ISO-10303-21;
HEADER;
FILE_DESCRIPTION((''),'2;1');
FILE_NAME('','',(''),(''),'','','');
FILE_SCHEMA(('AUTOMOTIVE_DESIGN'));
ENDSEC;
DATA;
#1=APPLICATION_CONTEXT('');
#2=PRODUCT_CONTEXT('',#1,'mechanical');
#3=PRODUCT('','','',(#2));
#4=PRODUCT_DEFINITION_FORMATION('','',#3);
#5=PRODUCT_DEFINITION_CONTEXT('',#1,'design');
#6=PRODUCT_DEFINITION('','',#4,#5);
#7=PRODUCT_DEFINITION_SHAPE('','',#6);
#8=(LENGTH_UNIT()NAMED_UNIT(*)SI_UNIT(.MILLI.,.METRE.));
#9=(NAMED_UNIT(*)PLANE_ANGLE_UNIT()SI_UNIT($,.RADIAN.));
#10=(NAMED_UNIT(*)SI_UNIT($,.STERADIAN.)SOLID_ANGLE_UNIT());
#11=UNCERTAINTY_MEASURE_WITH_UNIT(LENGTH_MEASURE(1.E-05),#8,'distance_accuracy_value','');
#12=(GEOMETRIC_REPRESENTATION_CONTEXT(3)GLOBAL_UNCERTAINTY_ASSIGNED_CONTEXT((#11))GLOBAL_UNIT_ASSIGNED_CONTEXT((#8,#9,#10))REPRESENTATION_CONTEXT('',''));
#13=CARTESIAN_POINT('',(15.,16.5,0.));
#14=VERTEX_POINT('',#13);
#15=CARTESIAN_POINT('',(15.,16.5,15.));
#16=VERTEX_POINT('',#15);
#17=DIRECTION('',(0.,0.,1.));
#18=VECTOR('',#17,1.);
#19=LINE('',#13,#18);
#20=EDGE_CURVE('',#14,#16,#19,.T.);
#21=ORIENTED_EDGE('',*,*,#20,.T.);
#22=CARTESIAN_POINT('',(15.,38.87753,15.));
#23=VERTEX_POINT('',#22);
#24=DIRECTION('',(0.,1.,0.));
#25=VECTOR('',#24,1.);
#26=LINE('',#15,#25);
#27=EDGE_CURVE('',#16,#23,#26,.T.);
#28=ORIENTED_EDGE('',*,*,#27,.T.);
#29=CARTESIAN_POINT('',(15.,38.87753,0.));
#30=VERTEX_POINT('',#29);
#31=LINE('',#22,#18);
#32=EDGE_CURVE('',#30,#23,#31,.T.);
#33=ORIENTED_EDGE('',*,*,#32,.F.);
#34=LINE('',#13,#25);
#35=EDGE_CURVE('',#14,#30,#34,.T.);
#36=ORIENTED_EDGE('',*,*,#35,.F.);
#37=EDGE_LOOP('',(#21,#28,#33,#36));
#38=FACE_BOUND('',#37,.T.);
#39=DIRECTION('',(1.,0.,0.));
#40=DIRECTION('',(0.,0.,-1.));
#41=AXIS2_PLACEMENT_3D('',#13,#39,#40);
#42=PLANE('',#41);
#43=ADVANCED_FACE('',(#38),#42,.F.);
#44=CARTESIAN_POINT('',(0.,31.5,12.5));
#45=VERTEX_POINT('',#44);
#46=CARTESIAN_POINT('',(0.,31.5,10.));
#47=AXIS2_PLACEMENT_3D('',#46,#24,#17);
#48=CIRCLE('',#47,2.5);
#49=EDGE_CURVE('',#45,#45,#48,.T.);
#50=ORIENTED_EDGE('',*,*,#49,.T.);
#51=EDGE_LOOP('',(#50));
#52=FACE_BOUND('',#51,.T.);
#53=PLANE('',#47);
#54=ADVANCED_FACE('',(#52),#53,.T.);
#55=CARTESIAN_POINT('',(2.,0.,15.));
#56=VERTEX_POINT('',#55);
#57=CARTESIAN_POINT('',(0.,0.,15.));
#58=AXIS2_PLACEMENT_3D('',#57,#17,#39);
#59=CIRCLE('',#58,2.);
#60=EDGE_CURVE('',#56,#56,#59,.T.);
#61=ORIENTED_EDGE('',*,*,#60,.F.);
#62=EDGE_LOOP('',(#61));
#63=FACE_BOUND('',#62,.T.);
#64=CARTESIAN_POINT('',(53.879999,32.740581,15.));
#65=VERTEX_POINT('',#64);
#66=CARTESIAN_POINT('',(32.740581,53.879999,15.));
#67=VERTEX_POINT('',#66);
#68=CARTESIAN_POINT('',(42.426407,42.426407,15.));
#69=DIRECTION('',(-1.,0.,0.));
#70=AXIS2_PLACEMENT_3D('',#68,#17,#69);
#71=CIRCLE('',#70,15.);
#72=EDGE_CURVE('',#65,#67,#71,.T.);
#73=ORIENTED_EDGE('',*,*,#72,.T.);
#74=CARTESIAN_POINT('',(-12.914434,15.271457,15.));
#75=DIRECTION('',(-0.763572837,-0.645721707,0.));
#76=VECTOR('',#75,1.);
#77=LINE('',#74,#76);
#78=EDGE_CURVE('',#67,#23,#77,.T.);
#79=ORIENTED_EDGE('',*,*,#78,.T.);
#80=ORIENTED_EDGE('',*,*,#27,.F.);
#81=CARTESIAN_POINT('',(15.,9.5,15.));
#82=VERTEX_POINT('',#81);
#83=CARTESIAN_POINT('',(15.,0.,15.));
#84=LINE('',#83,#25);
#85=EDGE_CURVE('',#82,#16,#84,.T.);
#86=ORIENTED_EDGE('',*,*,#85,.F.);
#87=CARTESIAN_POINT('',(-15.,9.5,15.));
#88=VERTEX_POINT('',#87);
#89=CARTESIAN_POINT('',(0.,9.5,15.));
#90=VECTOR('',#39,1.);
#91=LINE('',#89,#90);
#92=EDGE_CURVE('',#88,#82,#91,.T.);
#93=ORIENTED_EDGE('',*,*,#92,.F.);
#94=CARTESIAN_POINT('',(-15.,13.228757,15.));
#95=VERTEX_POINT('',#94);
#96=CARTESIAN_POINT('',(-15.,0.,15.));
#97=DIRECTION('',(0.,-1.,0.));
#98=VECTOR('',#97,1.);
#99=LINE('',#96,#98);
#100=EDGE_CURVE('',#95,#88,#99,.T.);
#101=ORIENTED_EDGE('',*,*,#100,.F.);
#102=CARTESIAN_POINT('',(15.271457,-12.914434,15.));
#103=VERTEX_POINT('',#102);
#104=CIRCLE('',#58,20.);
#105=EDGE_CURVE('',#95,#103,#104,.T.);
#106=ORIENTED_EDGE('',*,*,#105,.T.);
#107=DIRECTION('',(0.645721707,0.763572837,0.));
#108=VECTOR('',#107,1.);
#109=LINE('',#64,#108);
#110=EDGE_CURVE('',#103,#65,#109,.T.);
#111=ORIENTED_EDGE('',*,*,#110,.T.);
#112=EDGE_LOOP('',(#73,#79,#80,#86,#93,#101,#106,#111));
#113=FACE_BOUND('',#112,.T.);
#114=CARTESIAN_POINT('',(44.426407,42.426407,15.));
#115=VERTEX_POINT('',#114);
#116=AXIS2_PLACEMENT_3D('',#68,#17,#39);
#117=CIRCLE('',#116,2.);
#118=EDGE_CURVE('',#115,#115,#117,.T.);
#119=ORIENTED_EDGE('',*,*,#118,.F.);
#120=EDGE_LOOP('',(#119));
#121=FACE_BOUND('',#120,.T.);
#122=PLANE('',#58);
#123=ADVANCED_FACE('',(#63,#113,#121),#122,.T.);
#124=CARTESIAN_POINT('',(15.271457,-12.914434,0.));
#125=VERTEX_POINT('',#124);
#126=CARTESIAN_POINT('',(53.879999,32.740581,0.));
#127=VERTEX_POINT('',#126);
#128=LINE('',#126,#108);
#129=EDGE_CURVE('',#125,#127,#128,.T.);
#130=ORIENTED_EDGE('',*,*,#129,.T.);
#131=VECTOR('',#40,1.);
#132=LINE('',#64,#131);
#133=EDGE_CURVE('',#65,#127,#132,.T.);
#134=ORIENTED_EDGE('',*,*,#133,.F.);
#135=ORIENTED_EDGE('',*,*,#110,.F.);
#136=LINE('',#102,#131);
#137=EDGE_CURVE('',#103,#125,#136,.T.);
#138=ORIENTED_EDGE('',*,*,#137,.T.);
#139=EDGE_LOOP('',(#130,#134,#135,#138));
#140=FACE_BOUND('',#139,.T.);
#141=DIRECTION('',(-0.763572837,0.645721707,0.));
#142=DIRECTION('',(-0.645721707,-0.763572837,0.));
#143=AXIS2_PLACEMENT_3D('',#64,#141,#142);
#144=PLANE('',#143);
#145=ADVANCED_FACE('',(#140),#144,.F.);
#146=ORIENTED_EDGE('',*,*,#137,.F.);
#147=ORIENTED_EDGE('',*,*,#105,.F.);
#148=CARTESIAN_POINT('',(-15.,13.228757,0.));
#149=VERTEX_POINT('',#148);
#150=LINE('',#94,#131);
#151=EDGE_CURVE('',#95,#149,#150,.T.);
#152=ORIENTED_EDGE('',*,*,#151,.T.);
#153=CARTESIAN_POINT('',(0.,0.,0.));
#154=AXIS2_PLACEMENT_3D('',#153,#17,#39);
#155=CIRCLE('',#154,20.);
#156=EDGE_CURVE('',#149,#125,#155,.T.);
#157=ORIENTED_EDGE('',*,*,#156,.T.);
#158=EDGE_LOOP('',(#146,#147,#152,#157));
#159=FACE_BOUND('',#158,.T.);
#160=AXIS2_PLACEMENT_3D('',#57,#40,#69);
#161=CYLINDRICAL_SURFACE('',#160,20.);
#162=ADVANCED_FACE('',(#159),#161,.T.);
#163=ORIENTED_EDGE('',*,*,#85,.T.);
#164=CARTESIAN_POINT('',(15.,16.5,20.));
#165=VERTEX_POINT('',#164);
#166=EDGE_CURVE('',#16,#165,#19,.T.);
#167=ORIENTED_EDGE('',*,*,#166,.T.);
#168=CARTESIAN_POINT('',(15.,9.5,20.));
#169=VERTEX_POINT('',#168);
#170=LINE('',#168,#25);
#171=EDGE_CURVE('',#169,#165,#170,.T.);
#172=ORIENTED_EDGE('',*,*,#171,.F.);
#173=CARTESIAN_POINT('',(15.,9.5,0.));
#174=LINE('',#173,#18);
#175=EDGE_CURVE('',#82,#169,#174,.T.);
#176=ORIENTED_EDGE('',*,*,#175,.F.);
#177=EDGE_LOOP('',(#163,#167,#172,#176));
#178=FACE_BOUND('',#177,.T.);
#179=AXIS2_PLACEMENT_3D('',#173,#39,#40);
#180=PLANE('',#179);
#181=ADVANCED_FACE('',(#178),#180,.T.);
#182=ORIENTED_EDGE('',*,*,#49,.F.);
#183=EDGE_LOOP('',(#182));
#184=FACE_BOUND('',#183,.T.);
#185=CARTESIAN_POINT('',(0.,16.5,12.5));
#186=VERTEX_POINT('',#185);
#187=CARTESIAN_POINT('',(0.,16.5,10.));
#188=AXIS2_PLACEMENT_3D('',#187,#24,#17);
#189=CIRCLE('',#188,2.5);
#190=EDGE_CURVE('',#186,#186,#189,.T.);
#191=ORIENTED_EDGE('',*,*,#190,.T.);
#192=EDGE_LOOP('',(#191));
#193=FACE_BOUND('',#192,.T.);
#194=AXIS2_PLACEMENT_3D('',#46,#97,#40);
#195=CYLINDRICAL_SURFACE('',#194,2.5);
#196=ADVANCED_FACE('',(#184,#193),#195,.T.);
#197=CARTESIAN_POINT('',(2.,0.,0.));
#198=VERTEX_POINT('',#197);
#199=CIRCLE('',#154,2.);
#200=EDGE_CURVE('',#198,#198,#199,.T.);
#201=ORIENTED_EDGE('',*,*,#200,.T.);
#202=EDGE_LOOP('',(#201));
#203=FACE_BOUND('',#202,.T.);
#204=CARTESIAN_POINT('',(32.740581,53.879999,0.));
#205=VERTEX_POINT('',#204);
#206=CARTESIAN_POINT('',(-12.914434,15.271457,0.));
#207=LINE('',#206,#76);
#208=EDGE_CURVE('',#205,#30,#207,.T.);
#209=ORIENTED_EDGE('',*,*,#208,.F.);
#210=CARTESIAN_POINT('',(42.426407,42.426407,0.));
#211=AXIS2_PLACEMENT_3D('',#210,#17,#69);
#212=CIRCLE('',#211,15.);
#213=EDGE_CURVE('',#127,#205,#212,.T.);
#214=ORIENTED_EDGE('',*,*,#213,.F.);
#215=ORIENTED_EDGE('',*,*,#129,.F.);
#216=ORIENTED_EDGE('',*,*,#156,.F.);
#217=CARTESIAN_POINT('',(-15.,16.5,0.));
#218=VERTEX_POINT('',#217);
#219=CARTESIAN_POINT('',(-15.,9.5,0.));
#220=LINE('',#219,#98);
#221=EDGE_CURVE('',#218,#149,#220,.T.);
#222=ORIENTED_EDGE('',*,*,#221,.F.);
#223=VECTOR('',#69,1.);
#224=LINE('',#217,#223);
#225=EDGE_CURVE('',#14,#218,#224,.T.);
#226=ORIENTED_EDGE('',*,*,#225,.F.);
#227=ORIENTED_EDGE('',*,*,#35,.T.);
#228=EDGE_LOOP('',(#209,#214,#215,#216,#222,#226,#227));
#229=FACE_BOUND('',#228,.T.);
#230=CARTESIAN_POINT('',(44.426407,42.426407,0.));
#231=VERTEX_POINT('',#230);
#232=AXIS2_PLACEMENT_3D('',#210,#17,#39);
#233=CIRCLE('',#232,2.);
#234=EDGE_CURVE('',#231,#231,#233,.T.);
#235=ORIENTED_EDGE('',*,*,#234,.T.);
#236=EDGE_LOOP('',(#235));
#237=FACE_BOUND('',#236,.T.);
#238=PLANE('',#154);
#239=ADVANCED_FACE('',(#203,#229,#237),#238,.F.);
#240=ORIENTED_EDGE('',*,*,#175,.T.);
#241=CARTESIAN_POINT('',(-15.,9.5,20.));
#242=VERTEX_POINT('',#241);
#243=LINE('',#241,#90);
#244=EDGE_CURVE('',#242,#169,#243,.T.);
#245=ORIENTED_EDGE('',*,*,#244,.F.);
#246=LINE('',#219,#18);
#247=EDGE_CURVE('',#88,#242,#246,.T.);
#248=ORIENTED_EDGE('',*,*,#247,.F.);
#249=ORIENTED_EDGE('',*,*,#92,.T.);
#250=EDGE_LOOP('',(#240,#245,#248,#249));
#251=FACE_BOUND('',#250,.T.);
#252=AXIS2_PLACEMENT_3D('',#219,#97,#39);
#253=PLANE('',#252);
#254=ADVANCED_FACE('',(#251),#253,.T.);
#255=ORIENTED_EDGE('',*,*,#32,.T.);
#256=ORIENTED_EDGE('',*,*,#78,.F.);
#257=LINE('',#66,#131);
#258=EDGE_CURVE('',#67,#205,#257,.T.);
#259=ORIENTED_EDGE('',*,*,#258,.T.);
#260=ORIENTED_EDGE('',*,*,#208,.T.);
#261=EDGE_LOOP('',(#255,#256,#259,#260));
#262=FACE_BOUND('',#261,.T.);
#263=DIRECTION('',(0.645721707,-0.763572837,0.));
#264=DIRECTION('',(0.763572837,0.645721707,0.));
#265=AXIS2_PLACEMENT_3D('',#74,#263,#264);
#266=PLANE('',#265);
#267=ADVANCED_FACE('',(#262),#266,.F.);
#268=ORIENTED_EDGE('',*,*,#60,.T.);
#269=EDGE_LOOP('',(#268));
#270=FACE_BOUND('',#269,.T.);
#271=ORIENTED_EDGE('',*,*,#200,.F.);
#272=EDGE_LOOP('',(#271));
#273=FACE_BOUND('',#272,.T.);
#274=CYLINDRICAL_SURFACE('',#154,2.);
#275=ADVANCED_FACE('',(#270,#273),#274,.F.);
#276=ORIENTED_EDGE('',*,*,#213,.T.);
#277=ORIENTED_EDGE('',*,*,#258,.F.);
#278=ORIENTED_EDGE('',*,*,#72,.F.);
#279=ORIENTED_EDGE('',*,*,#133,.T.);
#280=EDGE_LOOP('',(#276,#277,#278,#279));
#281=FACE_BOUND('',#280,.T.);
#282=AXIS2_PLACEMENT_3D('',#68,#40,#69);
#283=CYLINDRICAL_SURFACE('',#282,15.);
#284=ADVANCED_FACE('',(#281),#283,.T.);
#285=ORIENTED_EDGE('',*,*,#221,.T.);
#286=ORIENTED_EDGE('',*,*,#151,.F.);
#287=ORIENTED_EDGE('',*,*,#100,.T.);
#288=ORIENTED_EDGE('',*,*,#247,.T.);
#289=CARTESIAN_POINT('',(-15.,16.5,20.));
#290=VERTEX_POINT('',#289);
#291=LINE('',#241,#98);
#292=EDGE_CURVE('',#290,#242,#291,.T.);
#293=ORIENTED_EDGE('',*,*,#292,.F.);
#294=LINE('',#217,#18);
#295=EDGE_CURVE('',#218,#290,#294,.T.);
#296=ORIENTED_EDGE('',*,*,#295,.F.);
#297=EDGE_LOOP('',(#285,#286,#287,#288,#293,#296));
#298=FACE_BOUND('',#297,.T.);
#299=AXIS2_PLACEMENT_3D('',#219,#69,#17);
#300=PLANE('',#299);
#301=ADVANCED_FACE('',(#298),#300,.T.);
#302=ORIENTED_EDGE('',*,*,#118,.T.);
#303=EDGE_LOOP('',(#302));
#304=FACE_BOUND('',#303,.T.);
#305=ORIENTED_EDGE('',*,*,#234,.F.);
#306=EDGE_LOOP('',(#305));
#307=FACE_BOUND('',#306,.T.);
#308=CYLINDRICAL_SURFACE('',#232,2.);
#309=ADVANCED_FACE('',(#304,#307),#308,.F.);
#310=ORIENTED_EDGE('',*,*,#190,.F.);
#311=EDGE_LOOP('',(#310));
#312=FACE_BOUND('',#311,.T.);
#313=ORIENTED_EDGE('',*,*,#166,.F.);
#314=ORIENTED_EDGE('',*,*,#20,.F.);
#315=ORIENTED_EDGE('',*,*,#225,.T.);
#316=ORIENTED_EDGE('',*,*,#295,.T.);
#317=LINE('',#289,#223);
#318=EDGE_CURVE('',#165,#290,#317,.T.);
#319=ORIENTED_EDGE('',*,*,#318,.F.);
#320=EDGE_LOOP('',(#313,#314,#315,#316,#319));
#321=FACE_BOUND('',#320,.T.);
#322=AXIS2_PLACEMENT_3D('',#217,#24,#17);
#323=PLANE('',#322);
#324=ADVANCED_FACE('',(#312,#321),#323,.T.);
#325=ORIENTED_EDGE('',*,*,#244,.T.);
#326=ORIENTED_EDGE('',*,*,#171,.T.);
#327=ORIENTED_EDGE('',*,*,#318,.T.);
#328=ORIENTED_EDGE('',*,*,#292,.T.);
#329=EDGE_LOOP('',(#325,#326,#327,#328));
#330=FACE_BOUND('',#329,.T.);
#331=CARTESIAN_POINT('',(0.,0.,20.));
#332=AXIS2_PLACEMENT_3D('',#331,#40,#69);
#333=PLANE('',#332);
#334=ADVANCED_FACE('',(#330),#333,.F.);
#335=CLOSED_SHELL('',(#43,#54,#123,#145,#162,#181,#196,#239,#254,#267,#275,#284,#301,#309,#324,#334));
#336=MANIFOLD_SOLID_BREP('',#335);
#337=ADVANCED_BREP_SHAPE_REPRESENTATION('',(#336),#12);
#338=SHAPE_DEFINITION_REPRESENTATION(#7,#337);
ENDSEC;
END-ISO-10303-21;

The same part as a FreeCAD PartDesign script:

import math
import FreeCAD as App
import Part
import Sketcher
from FreeCAD import Vector


def add_polygon(sketch, points):
    """Adds a closed chain of lines whose ends are joined by coincident constraints."""
    first, n = sketch.GeometryCount, len(points)
    for a, b in zip(points, points[1:] + points[:1]):
        sketch.addGeometry(Part.LineSegment(App.Vector(*a, 0), App.Vector(*b, 0)), False)
    for i in range(n):
        sketch.addConstraint(Sketcher.Constraint("Coincident", first + i, 2, first + (i + 1) % n, 1))

doc = App.newDocument("Part")
body = doc.addObject("PartDesign::Body", "Body")

sketch1 = doc.addObject("Sketcher::SketchObject", "Sketch")
body.addObject(sketch1)
sketch1.AttachmentSupport = (doc.XY_Plane, [""])
sketch1.MapMode = "FlatFace"
sketch1.addGeometry([
    Part.LineSegment(Vector(32.740581, 53.879999, 0), Vector(-12.914434, 15.271457, 0)),
    Part.ArcOfCircle(Part.Circle(Vector(0, 0, 0), Vector(0, 0, 1), 20), math.radians(130.219808), math.radians(319.780192)),
    Part.LineSegment(Vector(15.271457, -12.914434, 0), Vector(53.879999, 32.740581, 0)),
    Part.ArcOfCircle(Part.Circle(Vector(42.426407, 42.426407, 0), Vector(0, 0, 1), 15), math.radians(-40.219808), math.radians(130.219808)),
], False)
sketch1.addConstraint([
    Sketcher.Constraint("Tangent", 0, 2, 1, 1),
    Sketcher.Constraint("Tangent", 1, 2, 2, 1),
    Sketcher.Constraint("Tangent", 2, 2, 3, 1),
    Sketcher.Constraint("Tangent", 3, 2, 0, 1),
    Sketcher.Constraint("Coincident", 1, 3, -1, 1),
    Sketcher.Constraint("Radius", 1, 20.0),
    Sketcher.Constraint("Radius", 3, 15.0),
    Sketcher.Constraint("DistanceX", -1, 1, 2, 2, 53.879999),
    Sketcher.Constraint("DistanceY", -1, 1, 3, 2, 53.879999),
])
pad1 = doc.addObject("PartDesign::Pad", "Pad")
body.addObject(pad1)
pad1.Profile = sketch1
pad1.Length = 15

sketch2 = doc.addObject("Sketcher::SketchObject", "Sketch001")
body.addObject(sketch2)
sketch2.AttachmentSupport = (doc.XY_Plane, [""])
sketch2.MapMode = "FlatFace"
sketch2.AttachmentOffset = App.Placement(Vector(0, 0, 15), App.Rotation())
sketch2.addGeometry([
    Part.Circle(Vector(0, 0, 0), Vector(0, 0, 1), 2),
    Part.Circle(Vector(42.426407, 42.426407, 0), Vector(0, 0, 1), 2),
], False)
sketch2.addConstraint([
    Sketcher.Constraint("Coincident", 0, 3, -1, 1),
    Sketcher.Constraint("Equal", 0, 1),
    Sketcher.Constraint("Diameter", 0, 4.0),
    Sketcher.Constraint("DistanceX", -1, 1, 1, 3, 42.426407),
    Sketcher.Constraint("DistanceY", -1, 1, 1, 3, 42.426407),
])
pocket1 = doc.addObject("PartDesign::Pocket", "Pocket")
body.addObject(pocket1)
pocket1.Profile = sketch2
pocket1.Type = "ThroughAll"
pocket1.Midplane = True

sketch3 = doc.addObject("Sketcher::SketchObject", "Sketch002")
body.addObject(sketch3)
sketch3.AttachmentSupport = (doc.XY_Plane, [""])
sketch3.MapMode = "FlatFace"
sketch3.AttachmentOffset = App.Placement(Vector(0, 0, 15), App.Rotation())
add_polygon(sketch3, [(-15, 16.5), (-15, 9.5), (15, 9.5), (15, 16.5)])
sketch3.addConstraint([
    Sketcher.Constraint("Vertical", 0),
    Sketcher.Constraint("Horizontal", 1),
    Sketcher.Constraint("Vertical", 2),
    Sketcher.Constraint("Horizontal", 3),
    Sketcher.Constraint("DistanceX", 1, 1, 1, 2, 30.0),
    Sketcher.Constraint("DistanceY", 0, 2, 0, 1, 7.0),
    Sketcher.Constraint("DistanceX", 0, 2, -1, 1, 15.0),
    Sketcher.Constraint("DistanceY", -1, 1, 0, 2, 9.5),
])
pad2 = doc.addObject("PartDesign::Pad", "Pad001")
body.addObject(pad2)
pad2.Profile = sketch3
pad2.Type = "TwoLengths"
pad2.Length = 5
pad2.Length2 = 15

sketch4 = doc.addObject("Sketcher::SketchObject", "Sketch003")
body.addObject(sketch4)
sketch4.AttachmentSupport = (doc.XY_Plane, [""])
sketch4.MapMode = "FlatFace"
sketch4.AttachmentOffset = App.Placement(Vector(0, 0, 15), App.Rotation())
add_polygon(sketch4, [(-23.205529, 46.89705), (-23.205529, 16.5), (15, 16.5), (15, 46.89705)])
sketch4.addConstraint([
    Sketcher.Constraint("Vertical", 0),
    Sketcher.Constraint("Horizontal", 1),
    Sketcher.Constraint("Vertical", 2),
    Sketcher.Constraint("Horizontal", 3),
    Sketcher.Constraint("DistanceX", -1, 1, 1, 2, 15.0),
    Sketcher.Constraint("DistanceY", -1, 1, 0, 2, 16.5),
    Sketcher.Constraint("DistanceX", 1, 1, 1, 2, 38.205529),
    Sketcher.Constraint("DistanceY", 0, 2, 0, 1, 30.39705),
])
pocket2 = doc.addObject("PartDesign::Pocket", "Pocket001")
body.addObject(pocket2)
pocket2.Profile = sketch4
pocket2.Type = "ThroughAll"
pocket2.Midplane = True

sketch5 = doc.addObject("Sketcher::SketchObject", "Sketch004")
body.addObject(sketch5)
sketch5.AttachmentSupport = (doc.XZ_Plane, [""])
sketch5.MapMode = "FlatFace"
sketch5.AttachmentOffset = App.Placement(Vector(0, 0, -16.5), App.Rotation())
sketch5.addGeometry(Part.Circle(Vector(0, 10, 0), Vector(0, 0, 1), 2.5), False)
sketch5.addConstraint([
    Sketcher.Constraint("PointOnObject", 0, 3, -2),
    Sketcher.Constraint("Diameter", 0, 5.0),
    Sketcher.Constraint("DistanceY", -1, 1, 0, 3, 10.0),
])
pad3 = doc.addObject("PartDesign::Pad", "Pad002")
body.addObject(pad3)
pad3.Profile = sketch5
pad3.Length = 15
pad3.Reversed = True

doc.recompute()
